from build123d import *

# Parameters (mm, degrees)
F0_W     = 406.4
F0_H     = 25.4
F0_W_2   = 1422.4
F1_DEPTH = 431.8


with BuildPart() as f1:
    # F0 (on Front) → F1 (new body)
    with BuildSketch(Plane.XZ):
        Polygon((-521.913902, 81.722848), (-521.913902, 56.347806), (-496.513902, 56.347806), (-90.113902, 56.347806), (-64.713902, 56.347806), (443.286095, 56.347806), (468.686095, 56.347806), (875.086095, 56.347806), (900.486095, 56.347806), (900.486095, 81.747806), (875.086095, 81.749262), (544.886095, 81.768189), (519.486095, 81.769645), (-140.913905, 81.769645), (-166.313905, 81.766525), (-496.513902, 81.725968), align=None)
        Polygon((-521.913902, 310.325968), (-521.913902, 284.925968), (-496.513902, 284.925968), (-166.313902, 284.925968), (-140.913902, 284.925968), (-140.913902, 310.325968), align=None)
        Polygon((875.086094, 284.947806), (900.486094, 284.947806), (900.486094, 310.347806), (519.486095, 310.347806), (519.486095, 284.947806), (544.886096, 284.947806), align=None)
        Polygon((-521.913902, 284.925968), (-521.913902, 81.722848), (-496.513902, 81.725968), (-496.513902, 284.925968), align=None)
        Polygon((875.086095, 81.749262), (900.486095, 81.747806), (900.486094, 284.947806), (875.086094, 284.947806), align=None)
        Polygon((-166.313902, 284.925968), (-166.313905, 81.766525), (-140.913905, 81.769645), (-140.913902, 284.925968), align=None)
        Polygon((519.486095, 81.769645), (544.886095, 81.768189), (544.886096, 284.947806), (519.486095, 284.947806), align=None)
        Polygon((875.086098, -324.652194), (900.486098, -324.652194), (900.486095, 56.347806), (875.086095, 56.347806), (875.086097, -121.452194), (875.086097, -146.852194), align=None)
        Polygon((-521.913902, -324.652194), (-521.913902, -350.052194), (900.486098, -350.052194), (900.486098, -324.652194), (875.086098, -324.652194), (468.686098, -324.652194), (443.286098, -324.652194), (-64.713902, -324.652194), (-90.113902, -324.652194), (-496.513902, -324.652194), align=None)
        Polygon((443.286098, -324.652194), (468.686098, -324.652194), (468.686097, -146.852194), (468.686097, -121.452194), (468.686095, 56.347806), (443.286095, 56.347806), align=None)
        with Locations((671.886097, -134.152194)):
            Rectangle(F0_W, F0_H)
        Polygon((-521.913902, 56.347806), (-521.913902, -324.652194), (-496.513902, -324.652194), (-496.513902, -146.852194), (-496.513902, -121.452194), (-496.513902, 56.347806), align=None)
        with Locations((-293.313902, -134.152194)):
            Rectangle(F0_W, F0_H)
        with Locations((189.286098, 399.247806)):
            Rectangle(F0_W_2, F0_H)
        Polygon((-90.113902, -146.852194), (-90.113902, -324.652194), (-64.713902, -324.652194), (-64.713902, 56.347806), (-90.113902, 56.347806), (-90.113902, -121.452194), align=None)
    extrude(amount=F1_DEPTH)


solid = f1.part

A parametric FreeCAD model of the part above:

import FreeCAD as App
import Part
import Sketcher
from FreeCAD import Vector
Q = App.Units.Quantity

doc = App.newDocument("Part")
params = doc.addObject("Spreadsheet::Sheet", "Params")
for row, (alias, value) in enumerate([
    ("sketch1_width", "56 in"),
    ("sketch1_width2", "15 in"),
    ("sketch1_width3", "16 in"),
    ("sketch1_width4", "19.9999999 in"),
    ("sketch1_width5", "12.9999999 in"),
    ("pad1_length", "17 in"),
], start=1):
    params.set(f"A{row}", alias)
    params.set(f"B{row}", "=" + value)
    params.setAlias(f"B{row}", alias)

body = doc.addObject("PartDesign::Body", "Body")
body.AllowCompound = True

# Sketch on XZ plane
sketch1 = body.newObject("Sketcher::SketchObject", "Sketch")
sketch1.AttachmentSupport = (doc.getObject("XZ_Plane"), [""])
sketch1.MapMode = "FlatFace"
sketch1.addGeometry([
    Part.LineSegment(Vector(-522, -350, 0), Vector(900, -350, 0)),  # 0
    Part.LineSegment(Vector(900, -350, 0), Vector(900, -325, 0)),  # 1
    Part.LineSegment(Vector(900, -325, 0), Vector(900, 56, 0)),  # 2
    Part.LineSegment(Vector(900, 56, 0), Vector(900, 82, 0)),  # 3
    Part.LineSegment(Vector(900, 82, 0), Vector(900, 285, 0)),  # 4
    Part.LineSegment(Vector(900, 285, 0), Vector(900, 310, 0)),  # 5
    Part.LineSegment(Vector(900, 310, 0), Vector(519, 310, 0)),  # 6
    Part.LineSegment(Vector(519, 310, 0), Vector(519, 82, 0)),  # 7
    Part.LineSegment(Vector(519, 82, 0), Vector(-141, 82, 0)),  # 8
    Part.LineSegment(Vector(-141, 82, 0), Vector(-141, 285, 0)),  # 9
    Part.LineSegment(Vector(-141, 285, 0), Vector(-141, 310, 0)),  # 10
    Part.LineSegment(Vector(-141, 310, 0), Vector(-522, 310, 0)),  # 11
    Part.LineSegment(Vector(-522, 310, 0), Vector(-522, -350, 0)),  # 12
    Part.LineSegment(Vector(-497, 56, 0), Vector(-90, 56, 0)),  # 13
    Part.LineSegment(Vector(-90, 56, 0), Vector(-90, -121, 0)),  # 14
    Part.LineSegment(Vector(-90, -121, 0), Vector(-497, -121, 0)),  # 15
    Part.LineSegment(Vector(-497, -121, 0), Vector(-497, 56, 0)),  # 16
    Part.LineSegment(Vector(-65, 56, 0), Vector(443, 56, 0)),  # 17
    Part.LineSegment(Vector(443, 56, 0), Vector(443, -325, 0)),  # 18
    Part.LineSegment(Vector(443, -325, 0), Vector(-65, -325, 0)),  # 19
    Part.LineSegment(Vector(-65, -325, 0), Vector(-65, 56, 0)),  # 20
    Part.LineSegment(Vector(-90, -325, 0), Vector(-497, -325, 0)),  # 21
    Part.LineSegment(Vector(-497, -325, 0), Vector(-497, -147, 0)),  # 22
    Part.LineSegment(Vector(-497, -147, 0), Vector(-90, -147, 0)),  # 23
    Part.LineSegment(Vector(-90, -147, 0), Vector(-90, -325, 0)),  # 24
    Part.LineSegment(Vector(469, 56, 0), Vector(875, 56, 0)),  # 25
    Part.LineSegment(Vector(875, 56, 0), Vector(875, -121, 0)),  # 26
    Part.LineSegment(Vector(875, -121, 0), Vector(469, -121, 0)),  # 27
    Part.LineSegment(Vector(469, -121, 0), Vector(469, 56, 0)),  # 28
    Part.LineSegment(Vector(875, -147, 0), Vector(875, -325, 0)),  # 29
    Part.LineSegment(Vector(875, -325, 0), Vector(469, -325, 0)),  # 30
    Part.LineSegment(Vector(469, -325, 0), Vector(469, -147, 0)),  # 31
    Part.LineSegment(Vector(469, -147, 0), Vector(875, -147, 0)),  # 32
    Part.LineSegment(Vector(545, 285, 0), Vector(875, 285, 0)),  # 33
    Part.LineSegment(Vector(875, 285, 0), Vector(875, 82, 0)),  # 34
    Part.LineSegment(Vector(875, 82, 0), Vector(545, 82, 0)),  # 35
    Part.LineSegment(Vector(545, 82, 0), Vector(545, 285, 0)),  # 36
    Part.LineSegment(Vector(-166, 82, 0), Vector(-497, 82, 0)),  # 37
    Part.LineSegment(Vector(-497, 82, 0), Vector(-497, 285, 0)),  # 38
    Part.LineSegment(Vector(-497, 285, 0), Vector(-166, 285, 0)),  # 39
    Part.LineSegment(Vector(-166, 285, 0), Vector(-166, 82, 0)),  # 40
    Part.LineSegment(Vector(-522, 412, 0), Vector(-522, 387, 0)),  # 41
    Part.LineSegment(Vector(-522, 387, 0), Vector(900, 387, 0)),  # 42
    Part.LineSegment(Vector(900, 387, 0), Vector(900, 412, 0)),  # 43
    Part.LineSegment(Vector(900, 412, 0), Vector(-522, 412, 0)),  # 44
], False)
sketch1.addConstraint([
    Sketcher.Constraint("Coincident", 0, 2, 1, 1),
    Sketcher.Constraint("Coincident", 1, 2, 2, 1),
    Sketcher.Constraint("Coincident", 2, 2, 3, 1),
    Sketcher.Constraint("Coincident", 3, 2, 4, 1),
    Sketcher.Constraint("Coincident", 4, 2, 5, 1),
    Sketcher.Constraint("Coincident", 5, 2, 6, 1),
    Sketcher.Constraint("Coincident", 6, 2, 7, 1),
    Sketcher.Constraint("Coincident", 7, 2, 8, 1),
    Sketcher.Constraint("Coincident", 8, 2, 9, 1),
    Sketcher.Constraint("Coincident", 9, 2, 10, 1),
    Sketcher.Constraint("Coincident", 10, 2, 11, 1),
    Sketcher.Constraint("Coincident", 11, 2, 12, 1),
    Sketcher.Constraint("Coincident", 12, 2, 0, 1),
    Sketcher.Constraint("Coincident", 13, 2, 14, 1),
    Sketcher.Constraint("Coincident", 14, 2, 15, 1),
    Sketcher.Constraint("Coincident", 15, 2, 16, 1),
    Sketcher.Constraint("Coincident", 16, 2, 13, 1),
    Sketcher.Constraint("Coincident", 17, 2, 18, 1),
    Sketcher.Constraint("Coincident", 18, 2, 19, 1),
    Sketcher.Constraint("Coincident", 19, 2, 20, 1),
    Sketcher.Constraint("Coincident", 20, 2, 17, 1),
    Sketcher.Constraint("Coincident", 21, 2, 22, 1),
    Sketcher.Constraint("Coincident", 22, 2, 23, 1),
    Sketcher.Constraint("Coincident", 23, 2, 24, 1),
    Sketcher.Constraint("Coincident", 24, 2, 21, 1),
    Sketcher.Constraint("Coincident", 25, 2, 26, 1),
    Sketcher.Constraint("Coincident", 26, 2, 27, 1),
    Sketcher.Constraint("Coincident", 27, 2, 28, 1),
    Sketcher.Constraint("Coincident", 28, 2, 25, 1),
    Sketcher.Constraint("Coincident", 29, 2, 30, 1),
    Sketcher.Constraint("Coincident", 30, 2, 31, 1),
    Sketcher.Constraint("Coincident", 31, 2, 32, 1),
    Sketcher.Constraint("Coincident", 32, 2, 29, 1),
    Sketcher.Constraint("Coincident", 33, 2, 34, 1),
    Sketcher.Constraint("Coincident", 34, 2, 35, 1),
    Sketcher.Constraint("Coincident", 35, 2, 36, 1),
    Sketcher.Constraint("Coincident", 36, 2, 33, 1),
    Sketcher.Constraint("Coincident", 37, 2, 38, 1),
    Sketcher.Constraint("Coincident", 38, 2, 39, 1),
    Sketcher.Constraint("Coincident", 39, 2, 40, 1),
    Sketcher.Constraint("Coincident", 40, 2, 37, 1),
    Sketcher.Constraint("Coincident", 41, 2, 42, 1),
    Sketcher.Constraint("Coincident", 42, 2, 43, 1),
    Sketcher.Constraint("Coincident", 43, 2, 44, 1),
    Sketcher.Constraint("Coincident", 44, 2, 41, 1),
    Sketcher.Constraint("Horizontal", 0),
    Sketcher.Constraint("Vertical", 1),
    Sketcher.Constraint("Vertical", 3),
    Sketcher.Constraint("Vertical", 4),
    Sketcher.Constraint("Vertical", 5),
    Sketcher.Constraint("Horizontal", 6),
    Sketcher.Constraint("Vertical", 7),
    Sketcher.Constraint("Horizontal", 8),
    Sketcher.Constraint("Vertical", 10),
    Sketcher.Constraint("Horizontal", 11),
    Sketcher.Constraint("Vertical", 12),
    Sketcher.Constraint("Horizontal", 13),
    Sketcher.Constraint("Vertical", 14),
    Sketcher.Constraint("Horizontal", 15),
    Sketcher.Constraint("Vertical", 16),
    Sketcher.Constraint("Horizontal", 17),
    Sketcher.Constraint("Horizontal", 19),
    Sketcher.Constraint("Vertical", 20),
    Sketcher.Constraint("Horizontal", 21),
    Sketcher.Constraint("Vertical", 22),
    Sketcher.Constraint("Horizontal", 23),
    Sketcher.Constraint("Vertical", 24),
    Sketcher.Constraint("Horizontal", 25),
    Sketcher.Constraint("Vertical", 26),
    Sketcher.Constraint("Horizontal", 27),
    Sketcher.Constraint("Vertical", 28),
    Sketcher.Constraint("Vertical", 29),
    Sketcher.Constraint("Horizontal", 30),
    Sketcher.Constraint("Vertical", 31),
    Sketcher.Constraint("Horizontal", 32),
    Sketcher.Constraint("Horizontal", 33),
    Sketcher.Constraint("Vertical", 34),
    Sketcher.Constraint("Vertical", 36),
    Sketcher.Constraint("Vertical", 38),
    Sketcher.Constraint("Horizontal", 39),
    Sketcher.Constraint("Vertical", 41),
    Sketcher.Constraint("Horizontal", 42),
    Sketcher.Constraint("Vertical", 43),
    Sketcher.Constraint("Horizontal", 44),
    Sketcher.Constraint("Parallel", 2, 9),
    Sketcher.Constraint("Parallel", 9, 18),
    Sketcher.Constraint("Parallel", 18, 40),
    Sketcher.Constraint("Horizontal", 2, 2, 13, 2),
    Sketcher.Constraint("Horizontal", 16, 2, 17, 2),
    Sketcher.Constraint("Horizontal", 1, 2, 18, 2),
    Sketcher.Constraint("Horizontal", 19, 2, 21, 2),
    Sketcher.Constraint("Horizontal", 20, 2, 25, 2),
    Sketcher.Constraint("Horizontal", 15, 2, 26, 2),
    Sketcher.Constraint("Horizontal", 24, 2, 29, 2),
    Sketcher.Constraint("Horizontal", 23, 2, 31, 2),
    Sketcher.Constraint("Horizontal", 4, 2, 33, 2),
    Sketcher.Constraint("Horizontal", 9, 2, 38, 2),
    Sketcher.Constraint("Vertical", 16, 2, 21, 2),
    Sketcher.Constraint("Vertical", 14, 2, 23, 2),
    Sketcher.Constraint("Vertical", 26, 2, 29, 2),
    Sketcher.Constraint("Vertical", 27, 2, 30, 2),
    Sketcher.Constraint("Vertical", 25, 2, 33, 2),
    Sketcher.Constraint("Vertical", 22, 2, 37, 2),
    Sketcher.Constraint("Vertical", 12, 2, 41, 2),
    Sketcher.Constraint("Vertical", 1, 2, 42, 2),
    Sketcher.Constraint("Equal", 6, 11),
    Sketcher.Constraint("Equal", 23, 25),
    Sketcher.Constraint("Equal", 33, 39),
    Sketcher.Constraint("Equal", 1, 3),
    Sketcher.Constraint("Equal", 3, 5),
    Sketcher.Constraint("Equal", 5, 10),
    Sketcher.Constraint("Equal", 11, 20),
    Sketcher.Constraint("Equal", 16, 22),
    Sketcher.Constraint("Equal", 4, 38),
    Sketcher.Constraint("Equal", 10, 41),
    Sketcher.Constraint("Equal", 35, 37),
    Sketcher.Constraint("DistanceX", 0, 1, 0, 2, Q("56 in")),
    Sketcher.Constraint("DistanceX", 6, 2, 6, 1, Q("15 in")),
    Sketcher.Constraint("DistanceX", 13, 1, 13, 2, Q("16 in")),
    Sketcher.Constraint("DistanceX", 17, 1, 17, 2, Q("19.9999999 in")),
    Sketcher.Constraint("DistanceX", 33, 1, 33, 2, Q("12.9999999 in")),
    Sketcher.Constraint("DistanceY", 1, 1, 1, 2, Q("1 in")),
    Sketcher.Constraint("DistanceY", 4, 1, 4, 2, Q("8 in")),
    Sketcher.Constraint("DistanceY", 14, 2, 14, 1, Q("7 in")),
    Sketcher.Constraint("DistanceX", 8, 2, 13, 2, Q("2.0000001 in")),
    Sketcher.Constraint("DistanceX", 17, 2, 7, 2, Q("3 in")),
    Sketcher.Constraint("DistanceX", 25, 2, 2, 2, Q("1 in")),
    Sketcher.Constraint("DistanceY", 16, 2, 41, 2, Q("13 in")),
    Sketcher.Constraint("DistanceY", 7, 2, 7, 1, Q("228.578161 mm")),
    Sketcher.Constraint("DistanceY", 12, 2, 12, 1, Q("660.378162 mm")),
    Sketcher.Constraint("DistanceX", -1, 1, 0, 2, Q("900.486098 mm")),
    Sketcher.Constraint("DistanceY", 34, 2, 34, 1, Q("203.198544 mm")),
    Sketcher.Constraint("DistanceY", 36, 1, 36, 2, Q("203.179617 mm")),
    Sketcher.Constraint("DistanceY", -1, 1, 9, 2, Q("284.925968 mm")),
    Sketcher.Constraint("DistanceY", 40, 2, 8, 2, Q("0.00312 mm")),
])
sketch1.setExpression("Constraints[116]", "Params.sketch1_width")
sketch1.setExpression("Constraints[117]", "Params.sketch1_width2")
sketch1.setExpression("Constraints[118]", "Params.sketch1_width3")
sketch1.setExpression("Constraints[119]", "Params.sketch1_width4")
sketch1.setExpression("Constraints[120]", "Params.sketch1_width5")
pad1 = body.newObject("PartDesign::Pad", "Pad")
pad1.Profile = sketch1
pad1.setExpression("Length", "Params.pad1_length")

doc.recompute()
